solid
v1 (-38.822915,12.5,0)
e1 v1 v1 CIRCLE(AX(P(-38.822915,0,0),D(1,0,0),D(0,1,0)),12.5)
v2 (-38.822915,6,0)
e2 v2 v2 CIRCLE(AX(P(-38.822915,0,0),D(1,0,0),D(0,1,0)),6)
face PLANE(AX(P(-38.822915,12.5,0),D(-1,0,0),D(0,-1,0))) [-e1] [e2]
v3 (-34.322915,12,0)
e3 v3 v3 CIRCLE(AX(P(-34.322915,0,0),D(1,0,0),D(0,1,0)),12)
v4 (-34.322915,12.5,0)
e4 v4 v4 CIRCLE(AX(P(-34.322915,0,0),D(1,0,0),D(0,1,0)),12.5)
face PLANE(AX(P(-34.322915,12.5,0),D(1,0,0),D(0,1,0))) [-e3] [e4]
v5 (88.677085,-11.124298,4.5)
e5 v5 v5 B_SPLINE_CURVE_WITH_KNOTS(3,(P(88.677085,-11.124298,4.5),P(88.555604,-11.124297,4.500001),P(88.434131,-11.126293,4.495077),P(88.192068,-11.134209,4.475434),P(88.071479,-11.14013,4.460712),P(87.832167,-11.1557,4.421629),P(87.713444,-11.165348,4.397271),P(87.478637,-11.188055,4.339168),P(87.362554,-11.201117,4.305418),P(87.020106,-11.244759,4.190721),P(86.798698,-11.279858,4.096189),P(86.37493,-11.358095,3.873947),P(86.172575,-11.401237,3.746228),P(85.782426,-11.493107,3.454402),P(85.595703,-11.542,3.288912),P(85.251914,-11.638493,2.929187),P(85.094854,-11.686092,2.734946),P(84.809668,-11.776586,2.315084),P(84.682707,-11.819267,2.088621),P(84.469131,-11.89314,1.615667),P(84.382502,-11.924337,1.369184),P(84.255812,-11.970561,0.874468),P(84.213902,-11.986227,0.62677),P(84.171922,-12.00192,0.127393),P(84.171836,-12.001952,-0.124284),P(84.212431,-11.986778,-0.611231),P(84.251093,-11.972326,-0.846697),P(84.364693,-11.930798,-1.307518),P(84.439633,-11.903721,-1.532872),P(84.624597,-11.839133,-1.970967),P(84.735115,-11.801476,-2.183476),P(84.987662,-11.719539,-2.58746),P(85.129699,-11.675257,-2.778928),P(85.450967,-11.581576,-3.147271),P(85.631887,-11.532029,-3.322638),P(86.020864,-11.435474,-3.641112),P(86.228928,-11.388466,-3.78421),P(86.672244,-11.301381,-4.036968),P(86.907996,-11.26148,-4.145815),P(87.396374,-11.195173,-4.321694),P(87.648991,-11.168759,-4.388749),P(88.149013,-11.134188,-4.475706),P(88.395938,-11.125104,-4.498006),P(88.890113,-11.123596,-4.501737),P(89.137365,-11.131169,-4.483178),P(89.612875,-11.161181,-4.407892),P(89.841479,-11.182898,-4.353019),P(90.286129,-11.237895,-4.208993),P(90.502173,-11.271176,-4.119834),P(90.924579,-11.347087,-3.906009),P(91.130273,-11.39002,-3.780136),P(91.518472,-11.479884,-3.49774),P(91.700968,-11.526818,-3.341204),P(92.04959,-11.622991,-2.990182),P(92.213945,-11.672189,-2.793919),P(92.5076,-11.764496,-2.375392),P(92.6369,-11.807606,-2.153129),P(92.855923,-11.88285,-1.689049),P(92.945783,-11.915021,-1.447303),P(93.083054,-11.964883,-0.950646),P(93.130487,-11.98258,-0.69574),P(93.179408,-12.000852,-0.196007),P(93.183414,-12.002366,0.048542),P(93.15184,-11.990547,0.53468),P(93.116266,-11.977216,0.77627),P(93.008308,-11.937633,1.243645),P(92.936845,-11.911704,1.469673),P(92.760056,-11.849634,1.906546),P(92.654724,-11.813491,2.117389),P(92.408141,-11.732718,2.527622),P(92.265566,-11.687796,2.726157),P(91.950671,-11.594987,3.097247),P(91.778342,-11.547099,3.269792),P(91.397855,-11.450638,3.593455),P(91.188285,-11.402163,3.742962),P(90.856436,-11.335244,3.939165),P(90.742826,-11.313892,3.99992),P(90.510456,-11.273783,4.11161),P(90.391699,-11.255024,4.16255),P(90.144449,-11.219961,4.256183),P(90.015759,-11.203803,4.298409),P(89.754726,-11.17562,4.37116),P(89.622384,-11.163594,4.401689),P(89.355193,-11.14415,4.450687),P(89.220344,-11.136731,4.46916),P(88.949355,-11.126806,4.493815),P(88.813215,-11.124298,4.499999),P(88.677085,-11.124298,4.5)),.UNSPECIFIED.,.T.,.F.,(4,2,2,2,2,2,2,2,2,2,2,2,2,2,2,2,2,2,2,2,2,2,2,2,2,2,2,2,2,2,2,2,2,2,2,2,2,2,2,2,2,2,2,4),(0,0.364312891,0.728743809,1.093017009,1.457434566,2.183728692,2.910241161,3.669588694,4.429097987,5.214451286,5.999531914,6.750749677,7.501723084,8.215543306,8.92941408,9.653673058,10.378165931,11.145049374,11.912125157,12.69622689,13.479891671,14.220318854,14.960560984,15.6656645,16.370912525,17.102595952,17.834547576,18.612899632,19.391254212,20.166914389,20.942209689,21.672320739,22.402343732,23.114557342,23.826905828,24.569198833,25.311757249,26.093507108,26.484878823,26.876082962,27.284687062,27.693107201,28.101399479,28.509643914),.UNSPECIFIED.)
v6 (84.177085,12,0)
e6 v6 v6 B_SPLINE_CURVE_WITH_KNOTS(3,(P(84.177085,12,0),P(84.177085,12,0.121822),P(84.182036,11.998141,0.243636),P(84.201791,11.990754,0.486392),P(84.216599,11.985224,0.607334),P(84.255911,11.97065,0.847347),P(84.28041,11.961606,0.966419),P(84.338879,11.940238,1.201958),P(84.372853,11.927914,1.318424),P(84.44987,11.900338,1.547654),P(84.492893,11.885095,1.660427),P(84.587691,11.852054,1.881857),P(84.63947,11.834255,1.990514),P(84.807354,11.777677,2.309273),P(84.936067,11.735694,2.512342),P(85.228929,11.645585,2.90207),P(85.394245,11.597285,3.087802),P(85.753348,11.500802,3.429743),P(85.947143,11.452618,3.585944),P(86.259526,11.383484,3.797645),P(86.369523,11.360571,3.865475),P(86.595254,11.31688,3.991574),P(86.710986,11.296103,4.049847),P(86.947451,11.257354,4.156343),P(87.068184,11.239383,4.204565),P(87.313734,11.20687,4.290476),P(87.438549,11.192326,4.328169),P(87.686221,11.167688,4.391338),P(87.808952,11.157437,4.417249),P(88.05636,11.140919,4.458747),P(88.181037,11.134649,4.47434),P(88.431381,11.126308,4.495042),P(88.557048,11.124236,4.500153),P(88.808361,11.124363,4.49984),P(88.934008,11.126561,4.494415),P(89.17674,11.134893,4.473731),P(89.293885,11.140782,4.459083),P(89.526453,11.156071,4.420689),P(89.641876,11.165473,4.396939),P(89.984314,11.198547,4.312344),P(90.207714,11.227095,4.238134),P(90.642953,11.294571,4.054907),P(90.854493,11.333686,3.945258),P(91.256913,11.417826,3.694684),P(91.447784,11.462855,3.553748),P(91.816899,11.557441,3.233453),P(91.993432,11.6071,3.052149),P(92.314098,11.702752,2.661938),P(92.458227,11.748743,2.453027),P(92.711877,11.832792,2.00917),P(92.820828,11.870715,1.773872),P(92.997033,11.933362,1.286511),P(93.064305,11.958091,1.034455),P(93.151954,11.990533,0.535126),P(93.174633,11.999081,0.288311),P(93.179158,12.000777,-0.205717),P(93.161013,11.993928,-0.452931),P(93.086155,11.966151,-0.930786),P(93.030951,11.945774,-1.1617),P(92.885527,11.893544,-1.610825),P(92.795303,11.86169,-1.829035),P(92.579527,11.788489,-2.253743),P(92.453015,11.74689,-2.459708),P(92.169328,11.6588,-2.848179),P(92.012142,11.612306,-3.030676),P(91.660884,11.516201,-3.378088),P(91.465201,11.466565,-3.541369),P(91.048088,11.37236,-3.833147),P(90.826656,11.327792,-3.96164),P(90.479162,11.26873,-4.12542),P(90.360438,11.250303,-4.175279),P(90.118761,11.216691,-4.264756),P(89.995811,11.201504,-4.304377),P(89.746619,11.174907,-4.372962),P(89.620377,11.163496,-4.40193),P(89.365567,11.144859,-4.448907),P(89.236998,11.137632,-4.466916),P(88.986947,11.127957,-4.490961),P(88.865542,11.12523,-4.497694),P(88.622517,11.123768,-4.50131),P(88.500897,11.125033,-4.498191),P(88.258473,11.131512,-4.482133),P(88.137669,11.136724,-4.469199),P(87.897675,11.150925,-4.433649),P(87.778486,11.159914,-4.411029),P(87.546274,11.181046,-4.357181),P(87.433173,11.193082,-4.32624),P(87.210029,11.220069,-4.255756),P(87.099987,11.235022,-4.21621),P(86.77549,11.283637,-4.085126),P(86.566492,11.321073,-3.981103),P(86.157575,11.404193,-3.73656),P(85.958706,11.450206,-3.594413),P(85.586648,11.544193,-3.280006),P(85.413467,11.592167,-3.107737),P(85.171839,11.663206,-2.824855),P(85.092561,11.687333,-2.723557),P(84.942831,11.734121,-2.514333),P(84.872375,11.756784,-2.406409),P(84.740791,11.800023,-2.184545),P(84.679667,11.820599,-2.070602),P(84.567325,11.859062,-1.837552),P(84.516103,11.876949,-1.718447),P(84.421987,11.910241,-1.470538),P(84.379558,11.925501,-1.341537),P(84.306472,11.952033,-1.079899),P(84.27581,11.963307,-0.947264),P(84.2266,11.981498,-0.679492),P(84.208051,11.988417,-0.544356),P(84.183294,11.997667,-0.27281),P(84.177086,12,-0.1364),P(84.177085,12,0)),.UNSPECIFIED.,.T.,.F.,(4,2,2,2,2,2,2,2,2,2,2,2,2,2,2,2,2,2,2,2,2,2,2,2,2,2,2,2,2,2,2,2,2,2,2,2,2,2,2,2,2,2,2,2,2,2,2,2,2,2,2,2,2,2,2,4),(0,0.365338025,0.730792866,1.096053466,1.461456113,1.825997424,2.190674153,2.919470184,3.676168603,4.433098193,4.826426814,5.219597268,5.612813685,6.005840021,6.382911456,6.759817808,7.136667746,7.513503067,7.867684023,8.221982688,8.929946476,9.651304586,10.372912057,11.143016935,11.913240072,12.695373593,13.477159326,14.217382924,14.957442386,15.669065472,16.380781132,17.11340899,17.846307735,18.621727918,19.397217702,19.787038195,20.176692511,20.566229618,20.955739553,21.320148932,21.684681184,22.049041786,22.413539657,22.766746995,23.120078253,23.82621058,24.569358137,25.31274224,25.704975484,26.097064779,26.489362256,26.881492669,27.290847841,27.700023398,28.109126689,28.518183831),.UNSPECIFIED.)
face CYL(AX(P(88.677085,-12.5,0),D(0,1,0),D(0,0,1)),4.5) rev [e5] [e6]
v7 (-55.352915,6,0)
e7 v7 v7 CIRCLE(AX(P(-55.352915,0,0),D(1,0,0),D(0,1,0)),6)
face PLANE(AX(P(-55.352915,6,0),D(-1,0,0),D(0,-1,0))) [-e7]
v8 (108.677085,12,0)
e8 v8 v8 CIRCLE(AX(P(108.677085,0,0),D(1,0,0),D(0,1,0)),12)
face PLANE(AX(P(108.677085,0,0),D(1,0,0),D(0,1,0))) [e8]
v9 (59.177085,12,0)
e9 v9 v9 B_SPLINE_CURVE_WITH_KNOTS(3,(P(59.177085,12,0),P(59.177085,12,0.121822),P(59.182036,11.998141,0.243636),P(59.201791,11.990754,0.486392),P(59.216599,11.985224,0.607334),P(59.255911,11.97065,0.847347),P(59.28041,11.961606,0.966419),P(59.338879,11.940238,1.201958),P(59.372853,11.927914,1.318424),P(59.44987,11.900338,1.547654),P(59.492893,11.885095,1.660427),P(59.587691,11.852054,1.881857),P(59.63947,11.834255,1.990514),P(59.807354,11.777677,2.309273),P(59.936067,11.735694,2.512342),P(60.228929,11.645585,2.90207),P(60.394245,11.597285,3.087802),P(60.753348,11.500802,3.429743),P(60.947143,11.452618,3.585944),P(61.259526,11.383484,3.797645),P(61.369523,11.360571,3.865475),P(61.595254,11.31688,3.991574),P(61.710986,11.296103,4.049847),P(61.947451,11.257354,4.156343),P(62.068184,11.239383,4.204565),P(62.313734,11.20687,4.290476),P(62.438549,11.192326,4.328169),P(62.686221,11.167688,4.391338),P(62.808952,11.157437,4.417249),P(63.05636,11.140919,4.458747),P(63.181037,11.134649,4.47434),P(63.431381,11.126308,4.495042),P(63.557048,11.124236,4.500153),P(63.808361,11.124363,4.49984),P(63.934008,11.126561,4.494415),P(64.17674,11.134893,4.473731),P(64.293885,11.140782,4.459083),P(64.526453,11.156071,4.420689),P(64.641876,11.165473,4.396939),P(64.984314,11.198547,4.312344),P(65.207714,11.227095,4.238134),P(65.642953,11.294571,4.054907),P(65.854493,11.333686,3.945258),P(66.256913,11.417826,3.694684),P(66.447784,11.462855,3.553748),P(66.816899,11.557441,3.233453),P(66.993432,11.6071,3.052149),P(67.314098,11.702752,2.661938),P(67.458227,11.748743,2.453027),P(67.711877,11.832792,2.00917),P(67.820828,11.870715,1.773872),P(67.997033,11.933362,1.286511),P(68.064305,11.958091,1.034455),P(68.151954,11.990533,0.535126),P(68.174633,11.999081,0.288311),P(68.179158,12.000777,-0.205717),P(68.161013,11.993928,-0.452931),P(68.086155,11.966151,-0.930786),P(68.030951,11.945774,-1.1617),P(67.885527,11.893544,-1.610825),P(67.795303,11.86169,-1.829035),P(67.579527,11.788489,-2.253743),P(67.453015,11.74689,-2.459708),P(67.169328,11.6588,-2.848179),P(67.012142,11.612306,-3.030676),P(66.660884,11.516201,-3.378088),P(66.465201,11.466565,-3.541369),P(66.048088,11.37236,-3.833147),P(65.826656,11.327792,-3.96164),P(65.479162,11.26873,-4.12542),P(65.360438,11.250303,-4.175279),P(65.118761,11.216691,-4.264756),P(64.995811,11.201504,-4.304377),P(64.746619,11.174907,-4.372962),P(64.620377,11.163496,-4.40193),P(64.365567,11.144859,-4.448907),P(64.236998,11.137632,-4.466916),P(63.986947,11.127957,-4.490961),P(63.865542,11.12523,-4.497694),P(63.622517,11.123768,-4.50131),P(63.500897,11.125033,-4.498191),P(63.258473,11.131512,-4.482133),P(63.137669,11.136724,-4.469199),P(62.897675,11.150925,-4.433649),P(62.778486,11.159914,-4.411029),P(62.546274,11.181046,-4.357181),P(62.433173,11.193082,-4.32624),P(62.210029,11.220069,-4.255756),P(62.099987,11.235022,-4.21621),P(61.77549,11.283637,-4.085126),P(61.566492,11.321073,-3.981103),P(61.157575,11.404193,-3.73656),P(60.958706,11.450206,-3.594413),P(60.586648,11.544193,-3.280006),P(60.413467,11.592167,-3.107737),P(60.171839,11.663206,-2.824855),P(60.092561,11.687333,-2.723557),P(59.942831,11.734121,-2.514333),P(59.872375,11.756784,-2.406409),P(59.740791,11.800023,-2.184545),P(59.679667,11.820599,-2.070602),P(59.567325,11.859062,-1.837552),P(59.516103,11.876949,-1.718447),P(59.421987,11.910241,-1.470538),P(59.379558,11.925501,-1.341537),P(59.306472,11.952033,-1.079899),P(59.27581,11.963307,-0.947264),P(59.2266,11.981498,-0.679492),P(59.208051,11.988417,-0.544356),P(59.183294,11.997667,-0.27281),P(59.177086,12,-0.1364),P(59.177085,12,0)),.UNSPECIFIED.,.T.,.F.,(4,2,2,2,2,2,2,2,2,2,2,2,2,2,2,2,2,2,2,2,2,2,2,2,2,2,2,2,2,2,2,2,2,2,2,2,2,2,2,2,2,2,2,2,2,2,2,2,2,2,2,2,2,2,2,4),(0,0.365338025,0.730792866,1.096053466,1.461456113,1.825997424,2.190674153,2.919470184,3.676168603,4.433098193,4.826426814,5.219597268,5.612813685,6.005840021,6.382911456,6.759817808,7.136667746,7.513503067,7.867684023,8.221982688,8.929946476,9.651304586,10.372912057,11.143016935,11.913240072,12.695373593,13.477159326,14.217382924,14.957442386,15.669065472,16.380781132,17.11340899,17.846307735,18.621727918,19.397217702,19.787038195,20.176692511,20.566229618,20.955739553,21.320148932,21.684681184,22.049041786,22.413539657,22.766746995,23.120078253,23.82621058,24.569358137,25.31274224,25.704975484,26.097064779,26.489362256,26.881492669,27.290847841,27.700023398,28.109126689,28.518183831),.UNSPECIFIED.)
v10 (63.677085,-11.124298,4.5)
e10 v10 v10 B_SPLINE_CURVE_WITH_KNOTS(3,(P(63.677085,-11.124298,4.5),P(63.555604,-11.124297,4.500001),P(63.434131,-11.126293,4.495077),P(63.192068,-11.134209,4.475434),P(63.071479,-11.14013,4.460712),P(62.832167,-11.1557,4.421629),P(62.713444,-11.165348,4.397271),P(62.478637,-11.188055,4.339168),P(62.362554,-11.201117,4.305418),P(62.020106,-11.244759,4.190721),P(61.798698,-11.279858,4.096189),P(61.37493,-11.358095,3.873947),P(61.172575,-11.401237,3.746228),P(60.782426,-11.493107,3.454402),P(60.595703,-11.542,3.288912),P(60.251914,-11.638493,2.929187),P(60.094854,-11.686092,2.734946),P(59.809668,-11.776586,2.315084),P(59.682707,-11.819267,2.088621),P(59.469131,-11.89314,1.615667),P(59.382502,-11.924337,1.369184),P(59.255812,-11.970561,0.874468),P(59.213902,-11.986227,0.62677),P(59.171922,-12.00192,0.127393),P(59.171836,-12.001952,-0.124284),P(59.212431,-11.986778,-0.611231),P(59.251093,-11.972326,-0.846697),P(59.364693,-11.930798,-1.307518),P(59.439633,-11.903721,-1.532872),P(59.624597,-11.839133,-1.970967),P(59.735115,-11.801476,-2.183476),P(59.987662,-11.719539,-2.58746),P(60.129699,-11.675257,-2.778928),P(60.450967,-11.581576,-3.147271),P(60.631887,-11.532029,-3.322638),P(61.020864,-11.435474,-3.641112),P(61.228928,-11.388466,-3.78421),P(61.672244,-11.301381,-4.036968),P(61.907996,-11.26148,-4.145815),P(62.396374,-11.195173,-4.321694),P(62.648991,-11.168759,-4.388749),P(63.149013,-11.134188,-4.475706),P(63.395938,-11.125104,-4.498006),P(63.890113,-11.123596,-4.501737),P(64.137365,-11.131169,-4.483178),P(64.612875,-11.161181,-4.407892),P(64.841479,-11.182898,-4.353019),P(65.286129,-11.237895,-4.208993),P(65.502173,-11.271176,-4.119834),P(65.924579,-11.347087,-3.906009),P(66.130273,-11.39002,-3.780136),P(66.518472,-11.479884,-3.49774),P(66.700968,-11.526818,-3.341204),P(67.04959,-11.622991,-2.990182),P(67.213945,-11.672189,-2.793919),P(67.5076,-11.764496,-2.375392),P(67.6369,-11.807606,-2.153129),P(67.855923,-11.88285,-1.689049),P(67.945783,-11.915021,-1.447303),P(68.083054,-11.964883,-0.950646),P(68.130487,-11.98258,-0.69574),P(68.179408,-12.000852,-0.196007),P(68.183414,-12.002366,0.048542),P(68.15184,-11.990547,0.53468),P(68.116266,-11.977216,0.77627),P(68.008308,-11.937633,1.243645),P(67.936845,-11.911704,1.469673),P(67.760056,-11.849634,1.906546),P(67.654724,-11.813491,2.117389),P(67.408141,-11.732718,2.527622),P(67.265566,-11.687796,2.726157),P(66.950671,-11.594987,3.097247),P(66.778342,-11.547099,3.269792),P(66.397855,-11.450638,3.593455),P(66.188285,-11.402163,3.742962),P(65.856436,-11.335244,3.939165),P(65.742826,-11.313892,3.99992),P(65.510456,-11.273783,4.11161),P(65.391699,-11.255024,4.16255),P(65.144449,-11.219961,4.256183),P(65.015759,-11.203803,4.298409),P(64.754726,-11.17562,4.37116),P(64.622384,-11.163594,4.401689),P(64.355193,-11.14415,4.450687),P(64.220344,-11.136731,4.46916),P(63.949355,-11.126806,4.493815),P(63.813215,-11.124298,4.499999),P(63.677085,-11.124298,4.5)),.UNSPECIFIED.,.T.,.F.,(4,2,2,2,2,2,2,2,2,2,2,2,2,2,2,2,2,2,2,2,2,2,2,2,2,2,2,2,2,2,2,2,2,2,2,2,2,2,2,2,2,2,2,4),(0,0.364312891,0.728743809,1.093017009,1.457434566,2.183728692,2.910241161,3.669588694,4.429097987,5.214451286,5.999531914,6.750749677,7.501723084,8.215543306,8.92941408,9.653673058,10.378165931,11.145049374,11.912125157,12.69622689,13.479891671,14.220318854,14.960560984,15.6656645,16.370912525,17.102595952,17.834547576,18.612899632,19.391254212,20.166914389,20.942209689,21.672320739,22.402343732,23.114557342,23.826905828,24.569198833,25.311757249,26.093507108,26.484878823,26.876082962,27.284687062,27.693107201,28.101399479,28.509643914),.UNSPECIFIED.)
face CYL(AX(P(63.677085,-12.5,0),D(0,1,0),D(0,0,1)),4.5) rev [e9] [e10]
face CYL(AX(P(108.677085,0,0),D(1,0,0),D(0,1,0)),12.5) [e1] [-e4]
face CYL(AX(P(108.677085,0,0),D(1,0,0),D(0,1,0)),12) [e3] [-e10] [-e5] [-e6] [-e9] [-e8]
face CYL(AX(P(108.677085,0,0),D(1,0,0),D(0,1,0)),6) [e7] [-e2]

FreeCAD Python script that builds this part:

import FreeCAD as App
import Part
import Sketcher
from FreeCAD import Vector


def add_polygon(sketch, points):
    """Adds a closed chain of lines whose ends are joined by coincident constraints."""
    first, n = sketch.GeometryCount, len(points)
    for a, b in zip(points, points[1:] + points[:1]):
        sketch.addGeometry(Part.LineSegment(App.Vector(*a, 0), App.Vector(*b, 0)), False)
    for i in range(n):
        sketch.addConstraint(Sketcher.Constraint("Coincident", first + i, 2, first + (i + 1) % n, 1))

doc = App.newDocument("Part")
body = doc.addObject("PartDesign::Body", "Body")

# Sketch on XY plane
sketch1 = body.newObject("Sketcher::SketchObject", "Sketch")
sketch1.AttachmentSupport = (doc.getObject("XY_Plane"), [""])
sketch1.MapMode = "FlatFace"
add_polygon(sketch1, [(108.7, 12), (-34.3, 12), (-34.3, 12.5), (-38.8, 12.5), (-38.8, 6), (-55.4, 6), (-55.4, 0), (108.7, 0)])  # lines 0-7
sketch1.addConstraint([
    Sketcher.Constraint("Horizontal", 0),
    Sketcher.Constraint("Vertical", 1),
    Sketcher.Constraint("Horizontal", 2),
    Sketcher.Constraint("Vertical", 3),
    Sketcher.Constraint("Horizontal", 4),
    Sketcher.Constraint("Vertical", 5),
    Sketcher.Constraint("Horizontal", 6),
    Sketcher.Constraint("Vertical", 7),
    Sketcher.Constraint("PointOnObject", 5, 2, -1),
    Sketcher.Constraint("DistanceX", 0, 2, 0, 1, 143.0),
    Sketcher.Constraint("DistanceY", 5, 2, 5, 1, 6.0),
    Sketcher.Constraint("DistanceY", 7, 1, 7, 2, 12.0),
    Sketcher.Constraint("DistanceX", 2, 2, 2, 1, 4.5),
    Sketcher.Constraint("DistanceY", 1, 1, 1, 2, 0.5),
    Sketcher.Constraint("DistanceX", 4, 2, 4, 1, 16.53),
    Sketcher.Constraint("DistanceX", 0, 2, -1, 1, 34.322915),
])
revolution = body.newObject("PartDesign::Revolution", "Revolution")
revolution.Profile = sketch1
revolution.ReferenceAxis = (sketch1, ["H_Axis"])
revolution.Angle = 360

# Sketch on XZ plane
sketch2 = body.newObject("Sketcher::SketchObject", "Sketch001")
sketch2.AttachmentSupport = (doc.getObject("XZ_Plane"), [""])
sketch2.MapMode = "FlatFace"
sketch2.addGeometry([
    Part.Circle(Vector(88.7, 0, 0), Vector(0, 0, 1), 4.5),
    Part.Circle(Vector(63.7, 0, 0), Vector(0, 0, 1), 4.5),
], False)
sketch2.addConstraint([
    Sketcher.Constraint("Equal", 0, 1),
    Sketcher.Constraint("PointOnObject", 0, 3, -1),
    Sketcher.Constraint("PointOnObject", 1, 3, -1),
    Sketcher.Constraint("Diameter", 0, 9.0),
    Sketcher.Constraint("DistanceX", 1, 3, 0, 3, 25.0),
    Sketcher.Constraint("DistanceX", -1, 1, 0, 3, 88.677085),
])
pocket1 = body.newObject("PartDesign::Pocket", "Pocket")
pocket1.Profile = sketch2
pocket1.Type = "ThroughAll"
pocket1.Midplane = True

doc.recompute()
